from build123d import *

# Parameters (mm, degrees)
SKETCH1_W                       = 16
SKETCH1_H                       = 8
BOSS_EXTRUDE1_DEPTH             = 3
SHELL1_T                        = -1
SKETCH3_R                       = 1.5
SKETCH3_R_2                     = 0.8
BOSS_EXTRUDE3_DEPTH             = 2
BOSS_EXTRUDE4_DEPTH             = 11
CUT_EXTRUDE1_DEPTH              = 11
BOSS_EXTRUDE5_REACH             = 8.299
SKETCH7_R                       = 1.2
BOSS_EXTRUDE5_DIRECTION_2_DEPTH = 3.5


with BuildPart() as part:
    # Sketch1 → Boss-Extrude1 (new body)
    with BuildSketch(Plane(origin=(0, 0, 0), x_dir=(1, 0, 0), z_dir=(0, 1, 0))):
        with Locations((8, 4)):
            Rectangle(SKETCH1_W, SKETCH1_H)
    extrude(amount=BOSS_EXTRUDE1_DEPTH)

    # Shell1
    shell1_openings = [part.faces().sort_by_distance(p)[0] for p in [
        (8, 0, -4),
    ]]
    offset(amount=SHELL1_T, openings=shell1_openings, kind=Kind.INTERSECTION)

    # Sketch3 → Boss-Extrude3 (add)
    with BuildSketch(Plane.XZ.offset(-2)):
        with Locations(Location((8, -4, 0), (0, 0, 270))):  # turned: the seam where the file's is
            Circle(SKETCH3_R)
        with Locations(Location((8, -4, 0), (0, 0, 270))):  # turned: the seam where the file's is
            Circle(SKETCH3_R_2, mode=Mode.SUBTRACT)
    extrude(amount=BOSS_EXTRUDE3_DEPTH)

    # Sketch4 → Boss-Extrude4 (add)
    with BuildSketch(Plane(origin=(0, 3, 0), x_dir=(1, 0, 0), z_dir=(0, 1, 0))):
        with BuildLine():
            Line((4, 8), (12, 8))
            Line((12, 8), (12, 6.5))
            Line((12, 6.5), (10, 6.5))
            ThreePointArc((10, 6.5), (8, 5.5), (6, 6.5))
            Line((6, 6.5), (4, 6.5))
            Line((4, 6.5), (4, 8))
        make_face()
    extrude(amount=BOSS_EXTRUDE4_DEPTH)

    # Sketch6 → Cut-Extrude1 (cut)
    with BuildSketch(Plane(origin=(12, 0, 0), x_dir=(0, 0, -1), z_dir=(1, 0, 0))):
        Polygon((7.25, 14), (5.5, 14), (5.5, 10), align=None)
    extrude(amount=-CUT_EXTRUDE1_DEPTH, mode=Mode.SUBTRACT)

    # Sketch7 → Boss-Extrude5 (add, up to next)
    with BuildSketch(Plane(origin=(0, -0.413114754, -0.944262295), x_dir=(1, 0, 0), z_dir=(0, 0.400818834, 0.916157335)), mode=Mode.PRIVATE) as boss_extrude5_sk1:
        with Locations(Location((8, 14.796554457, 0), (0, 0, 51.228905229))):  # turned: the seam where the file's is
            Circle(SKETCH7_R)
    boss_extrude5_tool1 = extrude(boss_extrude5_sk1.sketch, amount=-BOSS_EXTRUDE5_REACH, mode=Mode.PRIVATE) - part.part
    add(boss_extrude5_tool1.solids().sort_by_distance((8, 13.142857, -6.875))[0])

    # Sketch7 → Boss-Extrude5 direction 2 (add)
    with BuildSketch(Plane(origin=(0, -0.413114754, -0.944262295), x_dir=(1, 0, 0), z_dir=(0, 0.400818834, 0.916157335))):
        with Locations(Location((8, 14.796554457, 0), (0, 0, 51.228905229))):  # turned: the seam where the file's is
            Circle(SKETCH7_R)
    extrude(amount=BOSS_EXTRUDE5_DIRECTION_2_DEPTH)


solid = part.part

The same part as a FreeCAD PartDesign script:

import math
import FreeCAD as App
import Part
import Sketcher

V = App.Vector
Q = App.Units.Quantity


def faces_at(feature, points):
    """Names of the faces that lie closest to the given points."""
    faces = feature.Shape.Faces
    near = lambda p: min(range(len(faces)), key=lambda i: faces[i].distToShape(Part.Vertex(*p))[0])
    return sorted({f"Face{near(p) + 1}" for p in points})

doc = App.newDocument("Part")
body = doc.addObject("PartDesign::Body", "Body")

# Sketch on XZ plane
sketch1 = body.newObject("Sketcher::SketchObject", "Sketch")
sketch1.AttachmentSupport = (doc.getObject("XZ_Plane"), [""])
sketch1.MapMode = "FlatFace"
sketch1.addGeometry(Part.LineSegment(V(0, -8, 0), V(0, 0, 0)), False)
sketch1.addGeometry(Part.LineSegment(V(0, 0, 0), V(16, 0, 0)), False)
sketch1.addGeometry(Part.LineSegment(V(16, 0, 0), V(16, -8, 0)), False)
sketch1.addGeometry(Part.LineSegment(V(16, -8, 0), V(0, -8, 0)), False)
sketch1.addConstraint(Sketcher.Constraint("Coincident", 0, 2, 1, 1))
sketch1.addConstraint(Sketcher.Constraint("Coincident", 1, 2, 2, 1))
sketch1.addConstraint(Sketcher.Constraint("Coincident", 2, 2, 3, 1))
sketch1.addConstraint(Sketcher.Constraint("Coincident", 3, 2, 0, 1))
sketch1.addConstraint(Sketcher.Constraint("Vertical", 0))
sketch1.addConstraint(Sketcher.Constraint("Horizontal", 1))
sketch1.addConstraint(Sketcher.Constraint("Vertical", 2))
sketch1.addConstraint(Sketcher.Constraint("Horizontal", 3))
sketch1.addConstraint(Sketcher.Constraint("Coincident", 0, 2, -1, 1))
sketch1.addConstraint(Sketcher.Constraint("DistanceX", 1, 1, 1, 2, Q("16 mm")))
sketch1.addConstraint(Sketcher.Constraint("DistanceY", 0, 1, 0, 2, Q("8 mm")))
pad1 = body.newObject("PartDesign::Pad", "Pad")
pad1.Profile = sketch1
pad1.Length = 3
pad1.Reversed = True
doc.recompute()

thickness = body.newObject("PartDesign::Thickness", "Thickness")
thickness.Base = (pad1, faces_at(pad1, [(8, 0, -4)]))
thickness.Value = 1
thickness.Reversed = True
thickness.Join = "Intersection"

# Sketch on XZ plane
sketch2 = body.newObject("Sketcher::SketchObject", "Sketch001")
sketch2.AttachmentSupport = (doc.getObject("XZ_Plane"), [""])
sketch2.MapMode = "FlatFace"
sketch2.AttachmentOffset = App.Placement(V(0, 0, -2), App.Rotation())
sketch2.addGeometry(Part.Circle(V(8, -4, 0), V(0, 0, 1), 1.5), False)
sketch2.addGeometry(Part.Circle(V(8, -4, 0), V(0, 0, 1), 0.8), False)
sketch2.addConstraint(Sketcher.Constraint("Coincident", 1, 3, 0, 3))
sketch2.addConstraint(Sketcher.Constraint("Diameter", 0, Q("3 mm")))
sketch2.addConstraint(Sketcher.Constraint("Diameter", 1, Q("1.6 mm")))
sketch2.addConstraint(Sketcher.Constraint("DistanceX", -1, 1, 0, 3, Q("8 mm")))
sketch2.addConstraint(Sketcher.Constraint("DistanceY", 0, 3, -1, 1, Q("4 mm")))
pad2 = body.newObject("PartDesign::Pad", "Pad001")
pad2.Profile = sketch2
pad2.Length = 2

# Sketch on XZ plane
sketch3 = body.newObject("Sketcher::SketchObject", "Sketch002")
sketch3.AttachmentSupport = (doc.getObject("XZ_Plane"), [""])
sketch3.MapMode = "FlatFace"
sketch3.AttachmentOffset = App.Placement(V(0, 0, -3), App.Rotation())
sketch3.addGeometry(Part.LineSegment(V(12, -8, 0), V(4, -8, 0)), False)
sketch3.addGeometry(Part.LineSegment(V(4, -8, 0), V(4, -6.5, 0)), False)
sketch3.addGeometry(Part.LineSegment(V(4, -6.5, 0), V(6, -6.5, 0)), False)
sketch3.addGeometry(Part.ArcOfCircle(Part.Circle(V(8, -8, 0), V(0, 0, 1), 2.5), math.radians(37), math.radians(143)), False)
sketch3.addGeometry(Part.LineSegment(V(10, -6.5, 0), V(12, -6.5, 0)), False)
sketch3.addGeometry(Part.LineSegment(V(12, -6.5, 0), V(12, -8, 0)), False)
sketch3.addConstraint(Sketcher.Constraint("Coincident", 0, 2, 1, 1))
sketch3.addConstraint(Sketcher.Constraint("Coincident", 1, 2, 2, 1))
sketch3.addConstraint(Sketcher.Constraint("Coincident", 2, 2, 3, 2))
sketch3.addConstraint(Sketcher.Constraint("Coincident", 3, 1, 4, 1))
sketch3.addConstraint(Sketcher.Constraint("Coincident", 4, 2, 5, 1))
sketch3.addConstraint(Sketcher.Constraint("Coincident", 5, 2, 0, 1))
sketch3.addConstraint(Sketcher.Constraint("Horizontal", 0))
sketch3.addConstraint(Sketcher.Constraint("Vertical", 1))
sketch3.addConstraint(Sketcher.Constraint("Horizontal", 2))
sketch3.addConstraint(Sketcher.Constraint("Horizontal", 4))
sketch3.addConstraint(Sketcher.Constraint("Vertical", 5))
sketch3.addConstraint(Sketcher.Constraint("Horizontal", 3, 3, 0, 2))
sketch3.addConstraint(Sketcher.Constraint("Horizontal", 2, 2, 3, 1))
sketch3.addConstraint(Sketcher.Constraint("Equal", 2, 4))
sketch3.addConstraint(Sketcher.Constraint("Radius", 3, Q("2.5 mm")))
sketch3.addConstraint(Sketcher.Constraint("DistanceX", 0, 2, 0, 1, Q("8 mm")))
sketch3.addConstraint(Sketcher.Constraint("DistanceX", 2, 1, 2, 2, Q("2 mm")))
sketch3.addConstraint(Sketcher.Constraint("DistanceX", -1, 1, 3, 3, Q("8 mm")))
sketch3.addConstraint(Sketcher.Constraint("DistanceY", 3, 3, -1, 1, Q("8 mm")))
pad3 = body.newObject("PartDesign::Pad", "Pad002")
pad3.Profile = sketch3
pad3.Length = 11
pad3.Reversed = True

# Sketch on YZ plane
sketch4 = body.newObject("Sketcher::SketchObject", "Sketch003")
sketch4.AttachmentSupport = (doc.getObject("YZ_Plane"), [""])
sketch4.MapMode = "FlatFace"
sketch4.AttachmentOffset = App.Placement(V(0, 0, 12), App.Rotation())
sketch4.addGeometry(Part.LineSegment(V(14, -7.2, 0), V(14, -5.5, 0)), False)
sketch4.addGeometry(Part.LineSegment(V(14, -5.5, 0), V(10, -5.5, 0)), False)
sketch4.addGeometry(Part.LineSegment(V(10, -5.5, 0), V(14, -7.2, 0)), False)
sketch4.addConstraint(Sketcher.Constraint("Coincident", 0, 2, 1, 1))
sketch4.addConstraint(Sketcher.Constraint("Coincident", 1, 2, 2, 1))
sketch4.addConstraint(Sketcher.Constraint("Coincident", 2, 2, 0, 1))
sketch4.addConstraint(Sketcher.Constraint("Vertical", 0))
sketch4.addConstraint(Sketcher.Constraint("Horizontal", 1))
sketch4.addConstraint(Sketcher.Constraint("DistanceX", 1, 2, 1, 1, Q("4 mm")))
sketch4.addConstraint(Sketcher.Constraint("DistanceX", -1, 1, 0, 2, Q("14 mm")))
sketch4.addConstraint(Sketcher.Constraint("DistanceY", 0, 1, 0, 2, Q("1.75 mm")))
sketch4.addConstraint(Sketcher.Constraint("DistanceY", 0, 2, -1, 1, Q("5.5 mm")))
pocket1 = body.newObject("PartDesign::Pocket", "Pocket")
pocket1.Profile = sketch4
pocket1.Length = 11

# Sketch on an angled plane
sketch5 = body.newObject("Sketcher::SketchObject", "Sketch004")
sketch5.Placement = App.Placement(V(0, -0.413115, -0.944262), App.Rotation(V(1, 0, 0), V(0, 0.916157335, -0.400818834), V(0, 0.400818834, 0.916157335), "ZXY"))
sketch5.addGeometry(Part.Circle(V(8, 14.8, 0), V(0, 0, 1), 1.2), False)
sketch5.addConstraint(Sketcher.Constraint("Diameter", 0, Q("2.4 mm")))
sketch5.addConstraint(Sketcher.Constraint("DistanceX", -1, 1, 0, 3, Q("8 mm")))
sketch5.addConstraint(Sketcher.Constraint("DistanceY", -1, 1, 0, 3, Q("14.796554 mm")))
pad4 = body.newObject("PartDesign::Pad", "Pad003")
pad4.Profile = sketch5
pad4.Type = "UpToFirst"
pad4.Reversed = True

# Sketch on an angled plane
sketch6 = body.newObject("Sketcher::SketchObject", "Sketch005")
sketch6.Placement = App.Placement(V(0, -0.413115, -0.944262), App.Rotation(V(1, 0, 0), V(0, 0.916157335, -0.400818834), V(0, 0.400818834, 0.916157335), "ZXY"))
sketch6.addGeometry(Part.Circle(V(8, 14.8, 0), V(0, 0, 1), 1.2), False)
sketch6.addConstraint(Sketcher.Constraint("Diameter", 0, Q("2.4 mm")))
sketch6.addConstraint(Sketcher.Constraint("DistanceX", -1, 1, 0, 3, Q("8 mm")))
sketch6.addConstraint(Sketcher.Constraint("DistanceY", -1, 1, 0, 3, Q("14.796554 mm")))
pad5 = body.newObject("PartDesign::Pad", "Pad004")
pad5.Profile = sketch6
pad5.Length = 3.5

doc.recompute()
